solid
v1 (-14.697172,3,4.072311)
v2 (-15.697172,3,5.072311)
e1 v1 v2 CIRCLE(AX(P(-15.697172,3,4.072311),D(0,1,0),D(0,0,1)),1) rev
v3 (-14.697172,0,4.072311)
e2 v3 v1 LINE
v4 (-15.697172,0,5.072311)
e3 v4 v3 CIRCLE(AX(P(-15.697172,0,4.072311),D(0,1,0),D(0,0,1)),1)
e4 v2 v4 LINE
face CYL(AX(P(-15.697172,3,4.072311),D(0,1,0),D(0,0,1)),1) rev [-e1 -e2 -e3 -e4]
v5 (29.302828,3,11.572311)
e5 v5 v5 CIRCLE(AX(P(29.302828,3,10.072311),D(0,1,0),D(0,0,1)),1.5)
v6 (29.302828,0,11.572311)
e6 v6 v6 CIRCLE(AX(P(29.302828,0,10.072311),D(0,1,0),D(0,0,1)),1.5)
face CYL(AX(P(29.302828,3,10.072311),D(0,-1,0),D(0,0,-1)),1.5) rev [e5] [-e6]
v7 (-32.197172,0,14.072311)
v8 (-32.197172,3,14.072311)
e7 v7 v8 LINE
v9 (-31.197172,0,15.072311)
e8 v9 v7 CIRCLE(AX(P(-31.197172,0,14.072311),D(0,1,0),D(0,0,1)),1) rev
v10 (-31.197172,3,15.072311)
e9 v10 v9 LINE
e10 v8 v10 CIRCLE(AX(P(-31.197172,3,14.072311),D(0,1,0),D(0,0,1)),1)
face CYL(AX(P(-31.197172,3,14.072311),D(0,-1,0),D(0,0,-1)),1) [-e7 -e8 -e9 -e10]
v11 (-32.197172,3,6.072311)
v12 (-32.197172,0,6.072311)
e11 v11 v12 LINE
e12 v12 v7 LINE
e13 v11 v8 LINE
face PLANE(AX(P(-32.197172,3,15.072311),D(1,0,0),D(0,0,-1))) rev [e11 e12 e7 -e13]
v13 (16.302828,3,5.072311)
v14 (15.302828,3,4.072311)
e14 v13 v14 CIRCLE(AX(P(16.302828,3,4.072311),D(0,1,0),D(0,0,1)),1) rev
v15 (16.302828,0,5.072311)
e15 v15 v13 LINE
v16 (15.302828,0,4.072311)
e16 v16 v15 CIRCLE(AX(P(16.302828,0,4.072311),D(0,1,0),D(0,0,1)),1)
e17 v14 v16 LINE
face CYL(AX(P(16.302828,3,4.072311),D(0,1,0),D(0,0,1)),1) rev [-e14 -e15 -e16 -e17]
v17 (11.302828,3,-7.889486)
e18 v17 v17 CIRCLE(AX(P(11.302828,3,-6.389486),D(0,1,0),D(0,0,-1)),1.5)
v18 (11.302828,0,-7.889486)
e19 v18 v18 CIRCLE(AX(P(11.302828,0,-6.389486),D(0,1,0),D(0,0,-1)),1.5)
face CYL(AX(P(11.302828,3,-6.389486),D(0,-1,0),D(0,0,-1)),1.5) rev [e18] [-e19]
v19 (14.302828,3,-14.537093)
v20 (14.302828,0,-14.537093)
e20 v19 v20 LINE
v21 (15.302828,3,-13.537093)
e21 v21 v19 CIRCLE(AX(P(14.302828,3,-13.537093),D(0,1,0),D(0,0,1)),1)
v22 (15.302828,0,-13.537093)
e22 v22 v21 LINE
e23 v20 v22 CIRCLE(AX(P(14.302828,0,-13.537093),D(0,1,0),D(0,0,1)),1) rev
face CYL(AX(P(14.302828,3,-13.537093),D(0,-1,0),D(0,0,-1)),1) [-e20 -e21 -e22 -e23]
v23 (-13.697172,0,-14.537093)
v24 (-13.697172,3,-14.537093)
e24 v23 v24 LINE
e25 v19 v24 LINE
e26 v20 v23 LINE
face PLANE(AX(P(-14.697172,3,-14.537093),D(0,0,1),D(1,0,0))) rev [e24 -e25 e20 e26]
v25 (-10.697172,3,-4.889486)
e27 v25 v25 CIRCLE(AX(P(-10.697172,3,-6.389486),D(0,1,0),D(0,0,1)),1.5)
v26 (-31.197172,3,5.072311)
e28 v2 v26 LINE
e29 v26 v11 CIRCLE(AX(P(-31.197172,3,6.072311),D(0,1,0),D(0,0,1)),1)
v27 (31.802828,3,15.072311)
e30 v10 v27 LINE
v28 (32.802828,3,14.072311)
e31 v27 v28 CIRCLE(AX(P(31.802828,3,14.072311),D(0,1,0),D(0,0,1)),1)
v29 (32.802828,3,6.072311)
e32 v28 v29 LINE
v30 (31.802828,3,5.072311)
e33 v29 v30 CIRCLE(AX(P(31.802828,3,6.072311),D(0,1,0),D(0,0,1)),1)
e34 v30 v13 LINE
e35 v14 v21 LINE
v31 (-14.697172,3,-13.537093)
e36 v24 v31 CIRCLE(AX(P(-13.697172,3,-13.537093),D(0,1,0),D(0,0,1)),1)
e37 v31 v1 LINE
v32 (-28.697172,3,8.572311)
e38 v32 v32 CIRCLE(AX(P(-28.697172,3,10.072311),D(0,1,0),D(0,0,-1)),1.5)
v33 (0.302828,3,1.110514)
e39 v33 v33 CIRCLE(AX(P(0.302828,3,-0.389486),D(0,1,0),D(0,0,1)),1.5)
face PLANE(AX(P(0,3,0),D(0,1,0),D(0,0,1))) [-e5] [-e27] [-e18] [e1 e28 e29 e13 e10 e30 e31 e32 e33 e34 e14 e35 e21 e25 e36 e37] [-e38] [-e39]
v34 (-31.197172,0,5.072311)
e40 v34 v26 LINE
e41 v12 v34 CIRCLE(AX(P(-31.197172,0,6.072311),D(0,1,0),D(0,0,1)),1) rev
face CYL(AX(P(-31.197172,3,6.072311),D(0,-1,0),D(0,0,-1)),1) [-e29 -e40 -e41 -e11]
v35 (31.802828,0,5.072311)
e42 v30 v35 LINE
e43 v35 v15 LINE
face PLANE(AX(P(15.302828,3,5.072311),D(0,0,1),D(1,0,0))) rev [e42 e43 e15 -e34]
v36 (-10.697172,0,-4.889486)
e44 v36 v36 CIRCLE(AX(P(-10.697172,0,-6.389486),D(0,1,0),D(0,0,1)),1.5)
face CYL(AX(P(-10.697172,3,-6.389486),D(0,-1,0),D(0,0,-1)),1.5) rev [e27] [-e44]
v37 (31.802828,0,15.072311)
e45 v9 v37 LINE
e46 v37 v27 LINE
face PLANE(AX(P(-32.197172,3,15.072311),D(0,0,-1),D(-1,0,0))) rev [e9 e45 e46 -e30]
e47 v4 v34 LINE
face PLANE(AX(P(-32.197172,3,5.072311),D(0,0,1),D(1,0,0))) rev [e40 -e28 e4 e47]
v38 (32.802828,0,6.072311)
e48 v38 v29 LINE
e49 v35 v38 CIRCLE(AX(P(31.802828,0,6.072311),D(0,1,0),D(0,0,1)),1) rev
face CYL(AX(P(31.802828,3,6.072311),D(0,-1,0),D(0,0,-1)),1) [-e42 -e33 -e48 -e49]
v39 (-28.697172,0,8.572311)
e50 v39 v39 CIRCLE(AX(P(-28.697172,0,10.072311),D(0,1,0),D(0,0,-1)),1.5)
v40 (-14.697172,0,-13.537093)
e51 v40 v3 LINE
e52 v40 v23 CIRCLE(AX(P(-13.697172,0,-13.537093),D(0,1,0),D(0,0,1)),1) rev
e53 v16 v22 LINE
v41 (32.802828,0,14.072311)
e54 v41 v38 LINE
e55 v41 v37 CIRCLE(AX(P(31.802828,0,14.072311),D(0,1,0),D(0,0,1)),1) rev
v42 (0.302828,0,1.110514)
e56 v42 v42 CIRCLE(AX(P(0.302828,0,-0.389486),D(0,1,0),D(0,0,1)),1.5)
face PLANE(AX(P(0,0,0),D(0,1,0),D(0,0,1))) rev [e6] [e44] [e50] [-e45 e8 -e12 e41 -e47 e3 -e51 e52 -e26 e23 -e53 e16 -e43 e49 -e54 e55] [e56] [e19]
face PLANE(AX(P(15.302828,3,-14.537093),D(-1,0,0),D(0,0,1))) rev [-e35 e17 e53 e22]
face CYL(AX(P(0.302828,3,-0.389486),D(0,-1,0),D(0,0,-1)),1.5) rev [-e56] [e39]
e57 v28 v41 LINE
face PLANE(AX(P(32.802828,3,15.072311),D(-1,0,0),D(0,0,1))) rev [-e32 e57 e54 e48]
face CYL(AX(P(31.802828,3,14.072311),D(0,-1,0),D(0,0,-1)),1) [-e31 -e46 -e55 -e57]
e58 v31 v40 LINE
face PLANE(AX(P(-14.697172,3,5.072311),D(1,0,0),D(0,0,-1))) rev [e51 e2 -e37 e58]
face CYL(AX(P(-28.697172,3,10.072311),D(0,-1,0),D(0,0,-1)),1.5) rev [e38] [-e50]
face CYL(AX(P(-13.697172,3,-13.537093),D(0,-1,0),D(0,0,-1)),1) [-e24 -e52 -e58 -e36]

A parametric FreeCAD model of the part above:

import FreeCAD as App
import Part
import Sketcher
Q = App.Units.Quantity


def edges_at(feature, points):
    """Names of the edges that pass closest to the given points."""
    edges = feature.Shape.Edges
    near = lambda p: min(range(len(edges)), key=lambda i: edges[i].distToShape(Part.Vertex(*p))[0])
    return sorted({f"Edge{near(p) + 1}" for p in points})

doc = App.newDocument("Part")
body = doc.addObject("PartDesign::Body", "Body")

sketch1 = body.newObject("Sketcher::SketchObject", "Sketch")
sketch1.AttachmentSupport = (doc.getObject("XZ_Plane"), [""])
sketch1.MapMode = "FlatFace"
sketch1.addGeometry([
    Part.LineSegment(App.Vector(32.8, 15.1, 0), App.Vector(32.8, 5.1, 0)),
    Part.LineSegment(App.Vector(32.8, 5.1, 0), App.Vector(15.3, 5.1, 0)),
    Part.LineSegment(App.Vector(15.3, 5.1, 0), App.Vector(15.3, -14.5, 0)),
    Part.LineSegment(App.Vector(15.3, -14.5, 0), App.Vector(-14.7, -14.5, 0)),
    Part.LineSegment(App.Vector(-14.7, -14.5, 0), App.Vector(-14.7, 5.1, 0)),
    Part.LineSegment(App.Vector(-14.7, 5.1, 0), App.Vector(-32.2, 5.1, 0)),
    Part.LineSegment(App.Vector(-32.2, 5.1, 0), App.Vector(-32.2, 15.1, 0)),
    Part.LineSegment(App.Vector(-32.2, 15.1, 0), App.Vector(32.8, 15.1, 0)),
    Part.Circle(App.Vector(-28.7, 10.1, 0), App.Vector(0, 0, 1), 1.5),
    Part.Circle(App.Vector(29.3, 10.1, 0), App.Vector(0, 0, 1), 1.5),
    Part.Circle(App.Vector(-10.7, -6.4, 0), App.Vector(0, 0, 1), 1.5),
    Part.Circle(App.Vector(0.3, -0.4, 0), App.Vector(0, 0, 1), 1.5),
    Part.Circle(App.Vector(11.3, -6.4, 0), App.Vector(0, 0, 1), 1.5),
], False)
sketch1.addConstraint([
    Sketcher.Constraint("Coincident", 0, 2, 1, 1),
    Sketcher.Constraint("Coincident", 1, 2, 2, 1),
    Sketcher.Constraint("Coincident", 2, 2, 3, 1),
    Sketcher.Constraint("Coincident", 3, 2, 4, 1),
    Sketcher.Constraint("Coincident", 4, 2, 5, 1),
    Sketcher.Constraint("Coincident", 5, 2, 6, 1),
    Sketcher.Constraint("Coincident", 6, 2, 7, 1),
    Sketcher.Constraint("Coincident", 7, 2, 0, 1),
    Sketcher.Constraint("Vertical", 0),
    Sketcher.Constraint("Horizontal", 1),
    Sketcher.Constraint("Vertical", 2),
    Sketcher.Constraint("Horizontal", 3),
    Sketcher.Constraint("Vertical", 4),
    Sketcher.Constraint("Horizontal", 5),
    Sketcher.Constraint("Vertical", 6),
    Sketcher.Constraint("Horizontal", 7),
    Sketcher.Constraint("Equal", 8, 9),
    Sketcher.Constraint("Equal", 9, 10),
    Sketcher.Constraint("Equal", 10, 11),
    Sketcher.Constraint("Equal", 11, 12),
    Sketcher.Constraint("Horizontal", 8, 3, 9, 3),
    Sketcher.Constraint("Horizontal", 10, 3, 12, 3),
    Sketcher.Constraint("Horizontal", 1, 2, 4, 2),
    Sketcher.Constraint("Equal", 1, 5),
    Sketcher.Constraint("Diameter", 8, Q("3 mm")),
    Sketcher.Constraint("DistanceX", 3, 2, 3, 1, Q("30 mm")),
    Sketcher.Constraint("DistanceX", 7, 1, 7, 2, Q("65 mm")),
    Sketcher.Constraint("DistanceY", 0, 2, 0, 1, Q("10 mm")),
    Sketcher.Constraint("DistanceX", 8, 3, 9, 3, Q("58 mm")),
    Sketcher.Constraint("DistanceX", 8, 3, 10, 3, Q("18 mm")),
    Sketcher.Constraint("DistanceX", 10, 3, 11, 3, Q("11 mm")),
    Sketcher.Constraint("DistanceY", 10, 3, 11, 3, Q("6 mm")),
    Sketcher.Constraint("DistanceX", 11, 3, 12, 3, Q("11 mm")),
    Sketcher.Constraint("DistanceY", 0, 2, 9, 3, Q("5 mm")),
    Sketcher.Constraint("DistanceX", 12, 3, 1, 2, Q("4 mm")),
    Sketcher.Constraint("DistanceY", 2, 2, 2, 1, Q("19.609404 mm")),
    Sketcher.Constraint("DistanceY", -1, 1, 8, 3, Q("10.072311 mm")),
    Sketcher.Constraint("DistanceX", 8, 3, -1, 1, Q("28.697172 mm")),
    Sketcher.Constraint("DistanceY", 10, 3, -1, 1, Q("6.389486 mm")),
])
pad1 = body.newObject("PartDesign::Pad", "Pad")
pad1.Profile = sketch1
pad1.Length = 3
pad1.Reversed = True
doc.recompute()

fillet = body.newObject("PartDesign::Fillet", "Fillet")
fillet.Base = (pad1, edges_at(pad1, [
    (-14.697, 1.5, 5.072),
    (-14.697, 1.5, -14.537),
    (15.303, 1.5, -14.537),
    (15.303, 1.5, 5.072),
    (32.803, 1.5, 5.072),
    (32.803, 1.5, 15.072),
    (-32.197, 1.5, 15.072),
    (-32.197, 1.5, 5.072),
]))
fillet.Radius = 1

doc.recompute()
